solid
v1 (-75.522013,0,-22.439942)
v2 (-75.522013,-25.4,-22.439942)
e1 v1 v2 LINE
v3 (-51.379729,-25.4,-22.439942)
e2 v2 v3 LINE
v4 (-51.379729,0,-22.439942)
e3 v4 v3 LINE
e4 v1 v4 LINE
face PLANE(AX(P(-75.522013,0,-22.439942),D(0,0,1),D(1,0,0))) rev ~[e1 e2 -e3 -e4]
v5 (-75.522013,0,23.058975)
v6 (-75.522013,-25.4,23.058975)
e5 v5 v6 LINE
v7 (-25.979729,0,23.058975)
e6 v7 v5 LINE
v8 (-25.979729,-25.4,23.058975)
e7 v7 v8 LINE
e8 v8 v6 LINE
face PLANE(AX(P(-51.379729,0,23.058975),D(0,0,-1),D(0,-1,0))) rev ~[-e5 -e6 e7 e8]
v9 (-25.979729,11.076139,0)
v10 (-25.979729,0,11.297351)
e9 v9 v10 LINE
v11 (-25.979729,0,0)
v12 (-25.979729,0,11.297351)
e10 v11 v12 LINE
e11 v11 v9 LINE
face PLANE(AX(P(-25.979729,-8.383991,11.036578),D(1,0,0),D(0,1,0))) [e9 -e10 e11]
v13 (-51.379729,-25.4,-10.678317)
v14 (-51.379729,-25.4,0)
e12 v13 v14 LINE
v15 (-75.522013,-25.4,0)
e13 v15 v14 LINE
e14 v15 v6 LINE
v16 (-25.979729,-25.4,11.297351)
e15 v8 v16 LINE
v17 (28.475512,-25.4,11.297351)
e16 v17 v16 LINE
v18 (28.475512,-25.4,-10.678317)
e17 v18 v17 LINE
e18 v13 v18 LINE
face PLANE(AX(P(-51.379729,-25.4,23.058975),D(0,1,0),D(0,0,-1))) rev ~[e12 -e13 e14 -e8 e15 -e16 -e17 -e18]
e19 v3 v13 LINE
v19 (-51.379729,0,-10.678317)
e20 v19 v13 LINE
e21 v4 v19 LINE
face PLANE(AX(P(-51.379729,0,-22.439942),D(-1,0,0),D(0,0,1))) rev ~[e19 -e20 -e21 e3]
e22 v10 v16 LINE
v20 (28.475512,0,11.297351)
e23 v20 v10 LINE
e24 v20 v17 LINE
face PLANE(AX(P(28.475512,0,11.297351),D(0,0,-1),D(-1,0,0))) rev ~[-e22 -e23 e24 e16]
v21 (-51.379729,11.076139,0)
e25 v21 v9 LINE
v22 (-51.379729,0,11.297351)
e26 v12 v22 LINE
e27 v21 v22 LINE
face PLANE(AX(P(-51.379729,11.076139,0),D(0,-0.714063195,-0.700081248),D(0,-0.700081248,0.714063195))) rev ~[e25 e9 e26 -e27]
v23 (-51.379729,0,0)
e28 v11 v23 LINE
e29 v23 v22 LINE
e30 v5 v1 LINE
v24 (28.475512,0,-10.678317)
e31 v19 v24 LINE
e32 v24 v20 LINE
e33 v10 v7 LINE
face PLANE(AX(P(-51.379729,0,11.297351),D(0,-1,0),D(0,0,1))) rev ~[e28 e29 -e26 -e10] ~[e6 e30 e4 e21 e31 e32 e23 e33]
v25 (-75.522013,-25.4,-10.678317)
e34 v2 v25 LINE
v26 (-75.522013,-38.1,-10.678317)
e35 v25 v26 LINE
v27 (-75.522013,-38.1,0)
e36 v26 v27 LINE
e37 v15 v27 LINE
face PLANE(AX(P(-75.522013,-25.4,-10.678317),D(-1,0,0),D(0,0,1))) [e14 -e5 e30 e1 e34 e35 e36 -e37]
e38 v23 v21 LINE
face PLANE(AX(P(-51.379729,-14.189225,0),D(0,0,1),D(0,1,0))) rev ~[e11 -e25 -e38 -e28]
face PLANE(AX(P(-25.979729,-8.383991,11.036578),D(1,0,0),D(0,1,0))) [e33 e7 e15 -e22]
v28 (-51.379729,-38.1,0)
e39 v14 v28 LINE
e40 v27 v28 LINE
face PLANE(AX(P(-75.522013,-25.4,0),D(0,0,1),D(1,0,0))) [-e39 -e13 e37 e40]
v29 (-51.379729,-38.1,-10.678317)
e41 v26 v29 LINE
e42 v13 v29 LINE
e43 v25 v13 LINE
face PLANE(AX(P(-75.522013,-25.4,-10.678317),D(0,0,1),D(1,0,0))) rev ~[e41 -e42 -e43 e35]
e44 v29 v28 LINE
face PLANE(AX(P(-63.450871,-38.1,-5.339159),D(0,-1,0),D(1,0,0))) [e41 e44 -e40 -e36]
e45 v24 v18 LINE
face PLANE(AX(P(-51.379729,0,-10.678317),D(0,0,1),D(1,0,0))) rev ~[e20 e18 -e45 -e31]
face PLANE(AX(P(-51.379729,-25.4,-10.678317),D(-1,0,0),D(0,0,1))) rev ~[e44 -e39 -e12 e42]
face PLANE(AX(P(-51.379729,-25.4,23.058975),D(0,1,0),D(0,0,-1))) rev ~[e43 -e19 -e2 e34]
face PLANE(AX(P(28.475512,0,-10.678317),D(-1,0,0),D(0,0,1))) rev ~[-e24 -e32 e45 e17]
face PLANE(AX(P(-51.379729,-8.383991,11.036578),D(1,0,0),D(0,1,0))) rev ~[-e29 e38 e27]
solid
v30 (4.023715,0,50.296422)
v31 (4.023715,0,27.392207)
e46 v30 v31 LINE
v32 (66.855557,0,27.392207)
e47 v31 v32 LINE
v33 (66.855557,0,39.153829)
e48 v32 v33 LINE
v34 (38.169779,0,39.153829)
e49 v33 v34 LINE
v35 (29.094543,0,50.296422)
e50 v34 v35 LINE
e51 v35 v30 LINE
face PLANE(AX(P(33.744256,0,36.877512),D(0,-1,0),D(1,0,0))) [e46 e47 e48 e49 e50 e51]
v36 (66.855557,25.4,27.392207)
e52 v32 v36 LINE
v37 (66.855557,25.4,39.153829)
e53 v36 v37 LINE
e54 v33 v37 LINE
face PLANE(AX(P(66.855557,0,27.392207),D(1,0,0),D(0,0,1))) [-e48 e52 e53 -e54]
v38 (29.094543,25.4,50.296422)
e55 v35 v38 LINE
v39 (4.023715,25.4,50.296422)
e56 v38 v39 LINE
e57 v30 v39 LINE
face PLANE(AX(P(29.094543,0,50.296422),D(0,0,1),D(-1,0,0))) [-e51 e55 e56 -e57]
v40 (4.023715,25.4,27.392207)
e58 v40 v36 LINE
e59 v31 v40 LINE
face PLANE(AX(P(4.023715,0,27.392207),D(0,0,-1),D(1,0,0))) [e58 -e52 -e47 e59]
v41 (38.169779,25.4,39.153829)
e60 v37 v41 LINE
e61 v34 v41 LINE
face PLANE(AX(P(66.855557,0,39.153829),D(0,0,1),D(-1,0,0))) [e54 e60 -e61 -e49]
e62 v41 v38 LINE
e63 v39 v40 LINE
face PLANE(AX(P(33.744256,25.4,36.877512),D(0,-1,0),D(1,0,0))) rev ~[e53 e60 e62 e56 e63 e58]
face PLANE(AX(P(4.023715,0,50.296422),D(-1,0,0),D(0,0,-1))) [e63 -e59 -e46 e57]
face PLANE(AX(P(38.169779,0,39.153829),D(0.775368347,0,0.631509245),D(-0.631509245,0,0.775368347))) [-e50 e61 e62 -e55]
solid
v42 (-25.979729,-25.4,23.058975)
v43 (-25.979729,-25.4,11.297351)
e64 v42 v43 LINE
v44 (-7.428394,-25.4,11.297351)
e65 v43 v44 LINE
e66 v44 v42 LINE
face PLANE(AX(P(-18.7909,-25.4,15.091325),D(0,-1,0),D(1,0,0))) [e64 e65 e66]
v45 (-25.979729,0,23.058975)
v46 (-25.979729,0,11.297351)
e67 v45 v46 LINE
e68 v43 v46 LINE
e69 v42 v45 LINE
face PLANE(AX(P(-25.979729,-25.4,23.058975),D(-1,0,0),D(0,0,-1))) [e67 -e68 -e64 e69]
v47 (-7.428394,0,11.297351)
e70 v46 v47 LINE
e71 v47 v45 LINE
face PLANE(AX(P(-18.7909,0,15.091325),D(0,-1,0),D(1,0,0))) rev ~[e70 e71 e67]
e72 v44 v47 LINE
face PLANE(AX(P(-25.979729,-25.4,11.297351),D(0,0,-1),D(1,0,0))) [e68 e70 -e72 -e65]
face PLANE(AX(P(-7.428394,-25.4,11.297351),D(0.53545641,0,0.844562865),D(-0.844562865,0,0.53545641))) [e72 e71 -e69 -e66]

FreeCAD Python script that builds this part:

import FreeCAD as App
import Part
import Sketcher
from FreeCAD import Vector
Q = App.Units.Quantity

doc = App.newDocument("Part")
body = doc.addObject("PartDesign::Body", "Body")

# Sketch on XZ plane
sketch1 = body.newObject("Sketcher::SketchObject", "Sketch")
sketch1.AttachmentSupport = (doc.getObject("XZ_Plane"), [""])
sketch1.MapMode = "FlatFace"
sketch1.addGeometry(Part.LineSegment(Vector(28, -11, 0), Vector(28, 11, 0)), False)
sketch1.addGeometry(Part.LineSegment(Vector(28, 11, 0), Vector(-51, 11, 0)), False)
sketch1.addGeometry(Part.LineSegment(Vector(-51, 11, 0), Vector(-51, 23, 0)), False)
sketch1.addGeometry(Part.LineSegment(Vector(-51, 23, 0), Vector(-76, 23, 0)), False)
sketch1.addGeometry(Part.LineSegment(Vector(-76, 23, 0), Vector(-76, 11, 0)), False)
sketch1.addGeometry(Part.LineSegment(Vector(-76, 11, 0), Vector(-76, -11, 0)), False)
sketch1.addGeometry(Part.LineSegment(Vector(-76, -11, 0), Vector(-76, -22, 0)), False)
sketch1.addGeometry(Part.LineSegment(Vector(-76, -22, 0), Vector(-51, -22, 0)), False)
sketch1.addGeometry(Part.LineSegment(Vector(-51, -22, 0), Vector(-51, -11, 0)), False)
sketch1.addGeometry(Part.LineSegment(Vector(-51, -11, 0), Vector(28, -11, 0)), False)
sketch1.addConstraint(Sketcher.Constraint("Coincident", 0, 2, 1, 1))
sketch1.addConstraint(Sketcher.Constraint("Coincident", 1, 2, 2, 1))
sketch1.addConstraint(Sketcher.Constraint("Coincident", 2, 2, 3, 1))
sketch1.addConstraint(Sketcher.Constraint("Coincident", 3, 2, 4, 1))
sketch1.addConstraint(Sketcher.Constraint("Coincident", 4, 2, 5, 1))
sketch1.addConstraint(Sketcher.Constraint("Coincident", 5, 2, 6, 1))
sketch1.addConstraint(Sketcher.Constraint("Coincident", 6, 2, 7, 1))
sketch1.addConstraint(Sketcher.Constraint("Coincident", 7, 2, 8, 1))
sketch1.addConstraint(Sketcher.Constraint("Coincident", 8, 2, 9, 1))
sketch1.addConstraint(Sketcher.Constraint("Coincident", 9, 2, 0, 1))
sketch1.addConstraint(Sketcher.Constraint("Vertical", 0))
sketch1.addConstraint(Sketcher.Constraint("Horizontal", 1))
sketch1.addConstraint(Sketcher.Constraint("Vertical", 2))
sketch1.addConstraint(Sketcher.Constraint("Horizontal", 3))
sketch1.addConstraint(Sketcher.Constraint("Vertical", 4))
sketch1.addConstraint(Sketcher.Constraint("Vertical", 5))
sketch1.addConstraint(Sketcher.Constraint("Vertical", 6))
sketch1.addConstraint(Sketcher.Constraint("Horizontal", 7))
sketch1.addConstraint(Sketcher.Constraint("Vertical", 8))
sketch1.addConstraint(Sketcher.Constraint("Horizontal", 9))
sketch1.addConstraint(Sketcher.Constraint("Horizontal", 1, 2, 4, 2))
sketch1.addConstraint(Sketcher.Constraint("Horizontal", 5, 2, 8, 2))
sketch1.addConstraint(Sketcher.Constraint("Vertical", 2, 2, 7, 2))
sketch1.addConstraint(Sketcher.Constraint("Equal", 4, 6))
sketch1.addConstraint(Sketcher.Constraint("DistanceX", 1, 2, 1, 1, 79.855241))
sketch1.addConstraint(Sketcher.Constraint("DistanceY", 0, 1, 0, 2, 21.975668))
sketch1.addConstraint(Sketcher.Constraint("DistanceX", 3, 2, 3, 1, 24.142284))
sketch1.addConstraint(Sketcher.Constraint("DistanceY", 2, 1, 2, 2, 11.761624))
sketch1.addConstraint(Sketcher.Constraint("DistanceX", -1, 1, 0, 2, 28.475512))
sketch1.addConstraint(Sketcher.Constraint("DistanceY", -1, 1, 0, 2, 11.297351))
pad1 = body.newObject("PartDesign::Pad", "Pad")
pad1.Profile = sketch1
pad1.Length = Q("1 in")

# Sketch on YZ plane
sketch2 = body.newObject("Sketcher::SketchObject", "Sketch001")
sketch2.AttachmentSupport = (doc.getObject("YZ_Plane"), [""])
sketch2.MapMode = "FlatFace"
sketch2.AttachmentOffset = App.Placement(Vector(0, 0, -51.379729), App.Rotation())
sketch2.addGeometry(Part.LineSegment(Vector(-25, 23, 0), Vector(-25, 11, 0)), False)
sketch2.addGeometry(Part.LineSegment(Vector(-25, 11, 0), Vector(-14, 0, 0)), False)
sketch2.addGeometry(Part.LineSegment(Vector(-14, 0, 0), Vector(11, 0, 0)), False)
sketch2.addGeometry(Part.LineSegment(Vector(11, 0, 0), Vector(0, 11, 0)), False)
sketch2.addGeometry(Part.LineSegment(Vector(0, 11, 0), Vector(0, 23, 0)), False)
sketch2.addGeometry(Part.LineSegment(Vector(0, 23, 0), Vector(-25, 23, 0)), False)
sketch2.addConstraint(Sketcher.Constraint("Coincident", 0, 2, 1, 1))
sketch2.addConstraint(Sketcher.Constraint("Coincident", 1, 2, 2, 1))
sketch2.addConstraint(Sketcher.Constraint("Coincident", 2, 2, 3, 1))
sketch2.addConstraint(Sketcher.Constraint("Coincident", 3, 2, 4, 1))
sketch2.addConstraint(Sketcher.Constraint("Coincident", 4, 2, 5, 1))
sketch2.addConstraint(Sketcher.Constraint("Coincident", 5, 2, 0, 1))
sketch2.addConstraint(Sketcher.Constraint("Vertical", 0))
sketch2.addConstraint(Sketcher.Constraint("Horizontal", 2))
sketch2.addConstraint(Sketcher.Constraint("Vertical", 4))
sketch2.addConstraint(Sketcher.Constraint("Horizontal", 5))
sketch2.addConstraint(Sketcher.Constraint("PointOnObject", 1, 2, -1))
sketch2.addConstraint(Sketcher.Constraint("PointOnObject", 3, 2, -2))
sketch2.addConstraint(Sketcher.Constraint("Horizontal", 0, 2, 3, 2))
sketch2.addConstraint(Sketcher.Constraint("DistanceX", 5, 2, 5, 1, Q("1 in")))
sketch2.addConstraint(Sketcher.Constraint("Distance", 3, 15.82122))
sketch2.addConstraint(Sketcher.Constraint("DistanceX", 2, 1, 2, 2, 25.265364))
sketch2.addConstraint(Sketcher.Constraint("DistanceY", 0, 2, 0, 1, 11.761624))
sketch2.addConstraint(Sketcher.Constraint("DistanceY", -1, 1, 0, 2, 11.297351))
pad2 = body.newObject("PartDesign::Pad", "Pad001")
pad2.Profile = sketch2
pad2.Length = Q("1 in")

# Sketch on XZ plane
sketch3 = body.newObject("Sketcher::SketchObject", "Sketch002")
sketch3.AttachmentSupport = (doc.getObject("XZ_Plane"), [""])
sketch3.MapMode = "FlatFace"
sketch3.AttachmentOffset = App.Placement(Vector(0, 0, 1 * 25.4), App.Rotation())
sketch3.addGeometry(Part.LineSegment(Vector(-76, 0, 0), Vector(-76, -11, 0)), False)
sketch3.addGeometry(Part.LineSegment(Vector(-76, -11, 0), Vector(-51, -11, 0)), False)
sketch3.addGeometry(Part.LineSegment(Vector(-51, -11, 0), Vector(-51, 0, 0)), False)
sketch3.addGeometry(Part.LineSegment(Vector(-51, 0, 0), Vector(-76, 0, 0)), False)
sketch3.addConstraint(Sketcher.Constraint("Coincident", 0, 2, 1, 1))
sketch3.addConstraint(Sketcher.Constraint("Coincident", 1, 2, 2, 1))
sketch3.addConstraint(Sketcher.Constraint("Coincident", 2, 2, 3, 1))
sketch3.addConstraint(Sketcher.Constraint("Coincident", 3, 2, 0, 1))
sketch3.addConstraint(Sketcher.Constraint("Vertical", 0))
sketch3.addConstraint(Sketcher.Constraint("Horizontal", 1))
sketch3.addConstraint(Sketcher.Constraint("Vertical", 2))
sketch3.addConstraint(Sketcher.Constraint("Horizontal", 3))
sketch3.addConstraint(Sketcher.Constraint("PointOnObject", 2, 2, -1))
sketch3.addConstraint(Sketcher.Constraint("DistanceX", 1, 1, 1, 2, 24.142284))
sketch3.addConstraint(Sketcher.Constraint("DistanceY", 0, 2, 0, 1, 10.678317))
sketch3.addConstraint(Sketcher.Constraint("DistanceX", 1, 2, -1, 1, 51.379729))
pad3 = body.newObject("PartDesign::Pad", "Pad002")
pad3.Profile = sketch3
pad3.Length = Q("0.5 in")
body2 = doc.addObject("PartDesign::Body", "Body001")

# Sketch on XZ plane
sketch4 = body2.newObject("Sketcher::SketchObject", "Sketch003")
sketch4.AttachmentSupport = (doc.getObject("XZ_Plane001"), [""])
sketch4.MapMode = "FlatFace"
sketch4.addGeometry(Part.LineSegment(Vector(67, 27, 0), Vector(67, 39, 0)), False)
sketch4.addGeometry(Part.LineSegment(Vector(67, 39, 0), Vector(38, 39, 0)), False)
sketch4.addGeometry(Part.LineSegment(Vector(38, 39, 0), Vector(29, 50, 0)), False)
sketch4.addGeometry(Part.LineSegment(Vector(29, 50, 0), Vector(4, 50, 0)), False)
sketch4.addGeometry(Part.LineSegment(Vector(4, 50, 0), Vector(4, 27, 0)), False)
sketch4.addGeometry(Part.LineSegment(Vector(4, 27, 0), Vector(67, 27, 0)), False)
sketch4.addConstraint(Sketcher.Constraint("Coincident", 0, 2, 1, 1))
sketch4.addConstraint(Sketcher.Constraint("Coincident", 1, 2, 2, 1))
sketch4.addConstraint(Sketcher.Constraint("Coincident", 2, 2, 3, 1))
sketch4.addConstraint(Sketcher.Constraint("Coincident", 3, 2, 4, 1))
sketch4.addConstraint(Sketcher.Constraint("Coincident", 4, 2, 5, 1))
sketch4.addConstraint(Sketcher.Constraint("Coincident", 5, 2, 0, 1))
sketch4.addConstraint(Sketcher.Constraint("Vertical", 0))
sketch4.addConstraint(Sketcher.Constraint("Horizontal", 1))
sketch4.addConstraint(Sketcher.Constraint("Horizontal", 3))
sketch4.addConstraint(Sketcher.Constraint("Vertical", 4))
sketch4.addConstraint(Sketcher.Constraint("Horizontal", 5))
sketch4.addConstraint(Sketcher.Constraint("DistanceX", 1, 2, 1, 1, 28.685778))
sketch4.addConstraint(Sketcher.Constraint("DistanceX", 3, 2, 3, 1, 25.070828))
sketch4.addConstraint(Sketcher.Constraint("Distance", 2, 14.370709))
sketch4.addConstraint(Sketcher.Constraint("DistanceX", 5, 1, 5, 2, 62.831842))
sketch4.addConstraint(Sketcher.Constraint("DistanceY", 0, 1, 0, 2, 11.761623))
sketch4.addConstraint(Sketcher.Constraint("DistanceY", -1, 1, 0, 2, 39.153829))
sketch4.addConstraint(Sketcher.Constraint("DistanceX", -1, 1, 1, 2, 38.169779))
pad4 = body2.newObject("PartDesign::Pad", "Pad003")
pad4.Profile = sketch4
pad4.Length = Q("1 in")
pad4.Reversed = True
body3 = doc.addObject("PartDesign::Body", "Body002")

# Sketch on XZ plane
sketch5 = body3.newObject("Sketcher::SketchObject", "Sketch004")
sketch5.AttachmentSupport = (doc.getObject("XZ_Plane002"), [""])
sketch5.MapMode = "FlatFace"
sketch5.AttachmentOffset = App.Placement(Vector(0, 0, 1 * 25.4), App.Rotation())
sketch5.addGeometry(Part.LineSegment(Vector(-7, 11, 0), Vector(-26, 23, 0)), False)
sketch5.addGeometry(Part.LineSegment(Vector(-26, 23, 0), Vector(-26, 11, 0)), False)
sketch5.addGeometry(Part.LineSegment(Vector(-26, 11, 0), Vector(-7, 11, 0)), False)
sketch5.addConstraint(Sketcher.Constraint("Coincident", 0, 2, 1, 1))
sketch5.addConstraint(Sketcher.Constraint("Coincident", 1, 2, 2, 1))
sketch5.addConstraint(Sketcher.Constraint("Coincident", 2, 2, 0, 1))
sketch5.addConstraint(Sketcher.Constraint("Vertical", 1))
sketch5.addConstraint(Sketcher.Constraint("Horizontal", 2))
sketch5.addConstraint(Sketcher.Constraint("DistanceX", 2, 1, 2, 2, 18.551335))
sketch5.addConstraint(Sketcher.Constraint("DistanceY", 1, 2, 1, 1, 11.761624))
sketch5.addConstraint(Sketcher.Constraint("DistanceX", 0, 2, -1, 1, 25.979729))
sketch5.addConstraint(Sketcher.Constraint("DistanceY", -1, 1, 1, 2, 11.297351))
pad5 = body3.newObject("PartDesign::Pad", "Pad004")
pad5.Profile = sketch5
pad5.Length = Q("1 in")
pad5.Reversed = True

doc.recompute()
